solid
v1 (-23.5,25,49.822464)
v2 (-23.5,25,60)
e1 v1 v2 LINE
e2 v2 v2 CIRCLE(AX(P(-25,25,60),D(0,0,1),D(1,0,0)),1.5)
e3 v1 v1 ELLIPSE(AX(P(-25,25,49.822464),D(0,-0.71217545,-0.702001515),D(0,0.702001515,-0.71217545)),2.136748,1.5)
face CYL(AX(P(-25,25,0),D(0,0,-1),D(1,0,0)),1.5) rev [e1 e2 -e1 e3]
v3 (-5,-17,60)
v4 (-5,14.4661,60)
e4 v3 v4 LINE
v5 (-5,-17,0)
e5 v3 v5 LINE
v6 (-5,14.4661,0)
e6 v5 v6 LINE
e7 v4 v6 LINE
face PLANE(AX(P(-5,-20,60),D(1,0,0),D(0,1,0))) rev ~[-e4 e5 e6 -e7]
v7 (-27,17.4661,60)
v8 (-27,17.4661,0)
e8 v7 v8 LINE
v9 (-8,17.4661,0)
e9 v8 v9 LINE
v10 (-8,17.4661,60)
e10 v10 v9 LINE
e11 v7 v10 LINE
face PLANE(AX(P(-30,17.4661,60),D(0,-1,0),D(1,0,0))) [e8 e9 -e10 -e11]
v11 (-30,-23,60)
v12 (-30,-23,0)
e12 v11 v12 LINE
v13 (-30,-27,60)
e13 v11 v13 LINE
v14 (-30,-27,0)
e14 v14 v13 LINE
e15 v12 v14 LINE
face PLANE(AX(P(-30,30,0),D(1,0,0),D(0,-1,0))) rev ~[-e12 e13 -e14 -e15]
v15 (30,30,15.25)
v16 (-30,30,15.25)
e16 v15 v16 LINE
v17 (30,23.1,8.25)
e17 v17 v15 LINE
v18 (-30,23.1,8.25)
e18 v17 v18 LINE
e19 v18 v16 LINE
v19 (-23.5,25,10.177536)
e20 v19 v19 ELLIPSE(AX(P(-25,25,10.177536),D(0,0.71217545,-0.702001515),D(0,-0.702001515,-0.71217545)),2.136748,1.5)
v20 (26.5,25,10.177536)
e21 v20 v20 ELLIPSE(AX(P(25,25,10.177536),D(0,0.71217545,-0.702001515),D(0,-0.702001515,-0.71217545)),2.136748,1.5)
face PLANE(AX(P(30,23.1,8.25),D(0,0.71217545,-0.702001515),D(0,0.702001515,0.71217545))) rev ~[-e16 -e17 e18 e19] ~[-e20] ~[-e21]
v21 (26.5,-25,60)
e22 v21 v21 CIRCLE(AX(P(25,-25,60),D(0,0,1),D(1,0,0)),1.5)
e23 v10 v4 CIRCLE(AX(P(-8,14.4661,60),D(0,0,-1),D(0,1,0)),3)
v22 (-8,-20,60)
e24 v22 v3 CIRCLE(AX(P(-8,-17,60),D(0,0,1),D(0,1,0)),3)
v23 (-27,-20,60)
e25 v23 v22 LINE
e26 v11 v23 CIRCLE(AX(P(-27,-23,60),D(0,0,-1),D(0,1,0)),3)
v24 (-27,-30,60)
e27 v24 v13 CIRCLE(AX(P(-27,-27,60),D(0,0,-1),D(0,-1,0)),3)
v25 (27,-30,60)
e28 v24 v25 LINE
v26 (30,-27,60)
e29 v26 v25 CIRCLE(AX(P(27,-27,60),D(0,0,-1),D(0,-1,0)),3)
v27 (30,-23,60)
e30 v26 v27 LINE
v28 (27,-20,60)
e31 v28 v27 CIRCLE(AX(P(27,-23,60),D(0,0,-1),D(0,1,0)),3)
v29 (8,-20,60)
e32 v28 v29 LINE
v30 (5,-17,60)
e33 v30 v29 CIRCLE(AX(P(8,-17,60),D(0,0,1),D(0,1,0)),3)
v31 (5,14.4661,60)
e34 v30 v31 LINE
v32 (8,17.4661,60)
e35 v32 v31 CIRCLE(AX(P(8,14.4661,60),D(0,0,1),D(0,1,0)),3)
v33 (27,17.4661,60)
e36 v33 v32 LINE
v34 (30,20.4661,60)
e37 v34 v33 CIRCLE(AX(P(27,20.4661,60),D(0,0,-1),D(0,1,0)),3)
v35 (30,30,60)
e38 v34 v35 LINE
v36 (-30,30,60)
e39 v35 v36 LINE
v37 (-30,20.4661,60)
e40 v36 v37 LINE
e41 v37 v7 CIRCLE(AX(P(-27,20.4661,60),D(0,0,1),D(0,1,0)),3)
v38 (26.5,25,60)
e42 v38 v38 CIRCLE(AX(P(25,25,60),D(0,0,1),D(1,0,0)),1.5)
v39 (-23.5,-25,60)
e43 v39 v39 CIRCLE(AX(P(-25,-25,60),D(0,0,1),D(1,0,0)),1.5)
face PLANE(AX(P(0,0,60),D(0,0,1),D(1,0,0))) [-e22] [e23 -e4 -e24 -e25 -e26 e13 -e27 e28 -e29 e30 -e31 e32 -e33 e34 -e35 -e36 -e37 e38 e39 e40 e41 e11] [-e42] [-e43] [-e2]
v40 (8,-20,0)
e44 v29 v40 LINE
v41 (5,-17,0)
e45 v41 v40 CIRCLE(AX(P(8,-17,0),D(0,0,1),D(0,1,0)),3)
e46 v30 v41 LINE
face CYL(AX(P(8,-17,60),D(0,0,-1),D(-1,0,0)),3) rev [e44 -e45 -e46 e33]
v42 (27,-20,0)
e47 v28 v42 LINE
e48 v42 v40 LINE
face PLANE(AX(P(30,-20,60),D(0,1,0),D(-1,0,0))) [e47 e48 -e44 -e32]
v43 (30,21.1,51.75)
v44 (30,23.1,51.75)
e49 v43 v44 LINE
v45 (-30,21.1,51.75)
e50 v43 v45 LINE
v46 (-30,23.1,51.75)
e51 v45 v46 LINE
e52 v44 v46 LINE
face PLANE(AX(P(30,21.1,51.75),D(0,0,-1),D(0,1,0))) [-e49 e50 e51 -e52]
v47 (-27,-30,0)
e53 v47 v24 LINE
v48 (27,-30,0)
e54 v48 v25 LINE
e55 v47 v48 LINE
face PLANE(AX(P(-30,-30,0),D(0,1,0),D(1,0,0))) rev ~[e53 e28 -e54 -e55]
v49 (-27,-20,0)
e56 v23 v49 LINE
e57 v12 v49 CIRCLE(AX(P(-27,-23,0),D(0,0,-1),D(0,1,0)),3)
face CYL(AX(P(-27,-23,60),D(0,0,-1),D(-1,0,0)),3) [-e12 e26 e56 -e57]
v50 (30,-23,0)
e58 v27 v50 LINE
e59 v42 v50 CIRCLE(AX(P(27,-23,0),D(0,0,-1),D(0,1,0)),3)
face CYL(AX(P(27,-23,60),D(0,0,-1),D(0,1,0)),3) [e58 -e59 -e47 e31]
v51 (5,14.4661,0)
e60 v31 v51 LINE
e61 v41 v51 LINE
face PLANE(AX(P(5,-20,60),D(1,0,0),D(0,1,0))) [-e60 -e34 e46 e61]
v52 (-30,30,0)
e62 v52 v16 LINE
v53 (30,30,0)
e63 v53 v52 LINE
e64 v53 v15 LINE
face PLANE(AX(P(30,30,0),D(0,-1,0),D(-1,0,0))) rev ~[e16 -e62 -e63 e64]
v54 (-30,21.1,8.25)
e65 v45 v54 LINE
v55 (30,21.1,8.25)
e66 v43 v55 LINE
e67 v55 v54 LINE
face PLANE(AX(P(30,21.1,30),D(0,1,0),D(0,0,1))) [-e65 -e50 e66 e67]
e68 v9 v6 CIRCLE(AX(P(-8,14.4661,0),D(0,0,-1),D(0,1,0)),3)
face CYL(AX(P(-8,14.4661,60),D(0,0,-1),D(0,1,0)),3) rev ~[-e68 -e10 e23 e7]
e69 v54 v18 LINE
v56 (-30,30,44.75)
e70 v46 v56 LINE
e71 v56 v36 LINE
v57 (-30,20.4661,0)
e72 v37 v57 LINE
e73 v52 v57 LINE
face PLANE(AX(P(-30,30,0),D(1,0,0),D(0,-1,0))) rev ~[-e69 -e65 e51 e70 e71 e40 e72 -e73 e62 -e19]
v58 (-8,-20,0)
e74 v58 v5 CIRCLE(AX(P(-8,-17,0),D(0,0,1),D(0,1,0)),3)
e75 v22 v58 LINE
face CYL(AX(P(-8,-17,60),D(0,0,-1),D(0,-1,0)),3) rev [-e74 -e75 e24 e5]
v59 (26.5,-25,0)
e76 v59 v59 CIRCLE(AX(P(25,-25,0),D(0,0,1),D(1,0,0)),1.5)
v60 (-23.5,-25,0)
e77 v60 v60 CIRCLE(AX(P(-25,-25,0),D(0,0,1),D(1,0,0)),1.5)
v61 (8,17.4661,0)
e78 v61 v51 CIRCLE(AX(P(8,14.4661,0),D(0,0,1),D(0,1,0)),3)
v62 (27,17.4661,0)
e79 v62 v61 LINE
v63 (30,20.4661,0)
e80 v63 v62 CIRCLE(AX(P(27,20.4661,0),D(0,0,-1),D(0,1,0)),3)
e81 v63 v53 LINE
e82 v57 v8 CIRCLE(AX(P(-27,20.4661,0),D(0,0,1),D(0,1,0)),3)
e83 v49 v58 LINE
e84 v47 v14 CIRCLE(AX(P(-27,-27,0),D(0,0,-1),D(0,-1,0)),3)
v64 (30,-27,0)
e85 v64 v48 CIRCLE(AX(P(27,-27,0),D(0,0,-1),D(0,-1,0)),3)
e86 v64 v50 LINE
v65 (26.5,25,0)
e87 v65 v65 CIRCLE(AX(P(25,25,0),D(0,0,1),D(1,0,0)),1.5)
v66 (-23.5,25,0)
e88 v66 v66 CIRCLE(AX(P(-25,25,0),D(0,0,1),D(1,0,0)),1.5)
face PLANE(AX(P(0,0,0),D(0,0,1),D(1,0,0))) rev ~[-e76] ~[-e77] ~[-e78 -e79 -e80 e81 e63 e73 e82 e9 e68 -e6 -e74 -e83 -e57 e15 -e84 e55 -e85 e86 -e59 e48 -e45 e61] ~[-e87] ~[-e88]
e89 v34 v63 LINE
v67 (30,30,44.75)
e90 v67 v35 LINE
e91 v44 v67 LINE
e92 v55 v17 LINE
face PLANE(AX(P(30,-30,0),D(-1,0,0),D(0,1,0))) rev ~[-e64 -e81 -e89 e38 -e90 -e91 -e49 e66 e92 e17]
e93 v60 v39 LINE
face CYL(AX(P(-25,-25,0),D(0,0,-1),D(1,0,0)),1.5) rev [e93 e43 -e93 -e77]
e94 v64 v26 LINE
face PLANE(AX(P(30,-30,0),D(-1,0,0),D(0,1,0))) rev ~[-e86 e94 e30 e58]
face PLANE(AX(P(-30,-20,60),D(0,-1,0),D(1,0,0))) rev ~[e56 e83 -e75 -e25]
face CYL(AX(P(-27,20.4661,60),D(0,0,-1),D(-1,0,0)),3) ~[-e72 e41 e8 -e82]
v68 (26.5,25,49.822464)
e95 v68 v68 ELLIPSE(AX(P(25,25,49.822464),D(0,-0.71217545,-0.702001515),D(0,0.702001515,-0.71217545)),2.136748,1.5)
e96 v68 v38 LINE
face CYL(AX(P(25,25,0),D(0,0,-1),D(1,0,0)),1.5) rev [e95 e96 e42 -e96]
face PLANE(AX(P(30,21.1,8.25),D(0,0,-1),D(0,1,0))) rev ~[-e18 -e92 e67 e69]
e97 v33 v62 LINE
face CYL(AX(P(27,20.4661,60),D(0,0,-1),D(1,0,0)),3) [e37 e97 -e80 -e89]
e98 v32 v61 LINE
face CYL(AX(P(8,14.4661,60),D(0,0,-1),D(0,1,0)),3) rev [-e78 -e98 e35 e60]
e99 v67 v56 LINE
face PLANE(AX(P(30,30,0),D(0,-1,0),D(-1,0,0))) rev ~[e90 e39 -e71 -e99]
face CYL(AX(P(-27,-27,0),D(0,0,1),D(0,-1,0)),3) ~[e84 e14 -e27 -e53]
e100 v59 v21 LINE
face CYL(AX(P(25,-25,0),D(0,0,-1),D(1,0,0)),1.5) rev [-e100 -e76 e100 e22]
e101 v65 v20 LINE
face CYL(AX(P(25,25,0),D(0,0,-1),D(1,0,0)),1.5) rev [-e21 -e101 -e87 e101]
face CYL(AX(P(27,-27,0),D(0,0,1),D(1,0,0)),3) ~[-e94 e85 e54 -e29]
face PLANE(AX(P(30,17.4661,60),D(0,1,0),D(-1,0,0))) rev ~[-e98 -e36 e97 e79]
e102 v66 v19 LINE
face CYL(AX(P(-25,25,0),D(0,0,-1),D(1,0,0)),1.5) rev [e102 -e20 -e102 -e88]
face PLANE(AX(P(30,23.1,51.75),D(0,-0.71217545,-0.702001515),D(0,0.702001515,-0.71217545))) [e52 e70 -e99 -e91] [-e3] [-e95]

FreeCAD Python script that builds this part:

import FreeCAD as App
import Part
import Sketcher

V = App.Vector


def edges_at(feature, points):
    """Names of the edges that pass closest to the given points."""
    edges = feature.Shape.Edges
    near = lambda p: min(range(len(edges)), key=lambda i: edges[i].distToShape(Part.Vertex(*p))[0])
    return sorted({f"Edge{near(p) + 1}" for p in points})

doc = App.newDocument("Part")
body = doc.addObject("PartDesign::Body", "Body")

sketch1 = body.newObject("Sketcher::SketchObject", "Sketch")
sketch1.AttachmentSupport = (doc.getObject("XY_Plane"), [""])
sketch1.MapMode = "FlatFace"
sketch1.addGeometry([
    Part.LineSegment(V(-30, 30, 0), V(-30, -30, 0)),
    Part.LineSegment(V(-30, -30, 0), V(30, -30, 0)),
    Part.LineSegment(V(30, -30, 0), V(30, 30, 0)),
    Part.LineSegment(V(30, 30, 0), V(-30, 30, 0)),
    Part.Circle(V(-25, -25, 0), V(0, 0, 1), 1.5),
    Part.Circle(V(25, -25, 0), V(0, 0, 1), 1.5),
    Part.Circle(V(-25, 25, 0), V(0, 0, 1), 1.5),
    Part.Circle(V(25, 25, 0), V(0, 0, 1), 1.5),
], False)
sketch1.addConstraint([
    Sketcher.Constraint("Coincident", 0, 2, 1, 1),
    Sketcher.Constraint("Coincident", 1, 2, 2, 1),
    Sketcher.Constraint("Coincident", 2, 2, 3, 1),
    Sketcher.Constraint("Coincident", 3, 2, 0, 1),
    Sketcher.Constraint("Vertical", 0),
    Sketcher.Constraint("Horizontal", 1),
    Sketcher.Constraint("Vertical", 2),
    Sketcher.Constraint("Horizontal", 3),
    Sketcher.Constraint("Equal", 4, 5),
    Sketcher.Constraint("Equal", 5, 6),
    Sketcher.Constraint("Equal", 6, 7),
    Sketcher.Constraint("Symmetric", 5, 3, 6, 3, -1, 1),
    Sketcher.Constraint("Symmetric", 4, 3, 7, 3, -1, 1),
    Sketcher.Constraint("Symmetric", 0, 2, 2, 2, -1, 1),
    Sketcher.Constraint("Symmetric", 4, 3, 5, 3, -2),
    Sketcher.Constraint("Equal", 3, 0),
    Sketcher.Constraint("Diameter", 4, 3.0),
    Sketcher.Constraint("DistanceX", 1, 1, 1, 2, 60.0),
    Sketcher.Constraint("DistanceX", 0, 2, 4, 3, 5.0),
    Sketcher.Constraint("DistanceY", 0, 2, 4, 3, 5.0),
])
pad1 = body.newObject("PartDesign::Pad", "Pad")
pad1.Profile = sketch1
pad1.Length = 60

sketch2 = body.newObject("Sketcher::SketchObject", "Sketch001")
sketch2.AttachmentSupport = (doc.getObject("YZ_Plane"), [""])
sketch2.MapMode = "FlatFace"
sketch2.AttachmentOffset = App.Placement(V(0, 0, 30), App.Rotation())
sketch2.addGeometry([
    Part.LineSegment(V(23.1, 8.2, 0), V(30, 15.2, 0)),
    Part.LineSegment(V(30, 15.2, 0), V(30, 44.8, 0)),
    Part.LineSegment(V(30, 44.8, 0), V(23.1, 51.8, 0)),
    Part.LineSegment(V(23.1, 51.8, 0), V(21.1, 51.8, 0)),
    Part.LineSegment(V(21.1, 51.8, 0), V(21.1, 8.2, 0)),
    Part.LineSegment(V(21.1, 8.2, 0), V(23.1, 8.2, 0)),
], False)
sketch2.addConstraint([
    Sketcher.Constraint("Coincident", 0, 2, 1, 1),
    Sketcher.Constraint("Coincident", 1, 2, 2, 1),
    Sketcher.Constraint("Coincident", 2, 2, 3, 1),
    Sketcher.Constraint("Coincident", 3, 2, 4, 1),
    Sketcher.Constraint("Coincident", 4, 2, 5, 1),
    Sketcher.Constraint("Coincident", 5, 2, 0, 1),
    Sketcher.Constraint("Vertical", 1),
    Sketcher.Constraint("Horizontal", 3),
    Sketcher.Constraint("Vertical", 4),
    Sketcher.Constraint("Horizontal", 5),
    Sketcher.Constraint("Vertical", 2, 2, 5, 2),
    Sketcher.Constraint("Equal", 0, 2),
    Sketcher.Constraint("DistanceX", 3, 2, 3, 1, 2.0),
    Sketcher.Constraint("DistanceX", 3, 2, 1, 2, 8.9),
    Sketcher.Constraint("DistanceY", 1, 1, 1, 2, 29.5),
    Sketcher.Constraint("DistanceY", 4, 2, 4, 1, 43.5),
    Sketcher.Constraint("DistanceX", -1, 1, 0, 2, 30.0),
    Sketcher.Constraint("DistanceY", -1, 1, 0, 2, 15.25),
])
pocket1 = body.newObject("PartDesign::Pocket", "Pocket")
pocket1.Profile = sketch2
pocket1.Length = 60

sketch3 = body.newObject("Sketcher::SketchObject", "Sketch002")
sketch3.AttachmentSupport = (doc.getObject("XY_Plane"), [""])
sketch3.MapMode = "FlatFace"
sketch3.AttachmentOffset = App.Placement(V(0, 0, 60), App.Rotation())
sketch3.addGeometry([
    Part.LineSegment(V(30, -20, 0), V(30, 17, 0)),
    Part.LineSegment(V(30, 17, 0), V(5, 17, 0)),
    Part.LineSegment(V(5, 17, 0), V(5, -20, 0)),
    Part.LineSegment(V(5, -20, 0), V(30, -20, 0)),
    Part.LineSegment(V(-5, 17, 0), V(-30, 17, 0)),
    Part.LineSegment(V(-30, 17, 0), V(-30, -20, 0)),
    Part.LineSegment(V(-30, -20, 0), V(-5, -20, 0)),
    Part.LineSegment(V(-5, -20, 0), V(-5, 17, 0)),
], False)
sketch3.addConstraint([
    Sketcher.Constraint("Coincident", 0, 2, 1, 1),
    Sketcher.Constraint("Coincident", 1, 2, 2, 1),
    Sketcher.Constraint("Coincident", 2, 2, 3, 1),
    Sketcher.Constraint("Coincident", 3, 2, 0, 1),
    Sketcher.Constraint("Coincident", 4, 2, 5, 1),
    Sketcher.Constraint("Coincident", 5, 2, 6, 1),
    Sketcher.Constraint("Coincident", 6, 2, 7, 1),
    Sketcher.Constraint("Coincident", 7, 2, 4, 1),
    Sketcher.Constraint("Vertical", 0),
    Sketcher.Constraint("Horizontal", 1),
    Sketcher.Constraint("Vertical", 2),
    Sketcher.Constraint("Horizontal", 3),
    Sketcher.Constraint("Horizontal", 4),
    Sketcher.Constraint("Vertical", 5),
    Sketcher.Constraint("Horizontal", 6),
    Sketcher.Constraint("Vertical", 7),
    Sketcher.Constraint("Symmetric", 0, 2, 4, 2, -2),
    Sketcher.Constraint("Symmetric", 2, 2, 6, 2, -2),
    Sketcher.Constraint("DistanceX", 1, 2, 1, 1, 25.0),
    Sketcher.Constraint("DistanceX", -1, 1, 1, 2, 5.0),
    Sketcher.Constraint("DistanceY", 2, 2, -1, 1, 20.0),
    Sketcher.Constraint("DistanceY", 0, 1, 0, 2, 37.466),
])
pocket2 = body.newObject("PartDesign::Pocket", "Pocket001")
pocket2.Profile = sketch3
pocket2.Length = 60
doc.recompute()

fillet = body.newObject("PartDesign::Fillet", "Fillet")
fillet.Base = (pocket2, edges_at(pocket2, [
    (30, -20, 30),
    (5, 17.466, 30),
    (-5, 17.466, 30),
    (-5, -20, 30),
    (5, -20, 30),
    (30, -30, 30),
    (-30, -30, 30),
    (-30, -20, 30),
    (-30, 17.466, 30),
    (30, 17.466, 30),
]))
fillet.Radius = 3

doc.recompute()
